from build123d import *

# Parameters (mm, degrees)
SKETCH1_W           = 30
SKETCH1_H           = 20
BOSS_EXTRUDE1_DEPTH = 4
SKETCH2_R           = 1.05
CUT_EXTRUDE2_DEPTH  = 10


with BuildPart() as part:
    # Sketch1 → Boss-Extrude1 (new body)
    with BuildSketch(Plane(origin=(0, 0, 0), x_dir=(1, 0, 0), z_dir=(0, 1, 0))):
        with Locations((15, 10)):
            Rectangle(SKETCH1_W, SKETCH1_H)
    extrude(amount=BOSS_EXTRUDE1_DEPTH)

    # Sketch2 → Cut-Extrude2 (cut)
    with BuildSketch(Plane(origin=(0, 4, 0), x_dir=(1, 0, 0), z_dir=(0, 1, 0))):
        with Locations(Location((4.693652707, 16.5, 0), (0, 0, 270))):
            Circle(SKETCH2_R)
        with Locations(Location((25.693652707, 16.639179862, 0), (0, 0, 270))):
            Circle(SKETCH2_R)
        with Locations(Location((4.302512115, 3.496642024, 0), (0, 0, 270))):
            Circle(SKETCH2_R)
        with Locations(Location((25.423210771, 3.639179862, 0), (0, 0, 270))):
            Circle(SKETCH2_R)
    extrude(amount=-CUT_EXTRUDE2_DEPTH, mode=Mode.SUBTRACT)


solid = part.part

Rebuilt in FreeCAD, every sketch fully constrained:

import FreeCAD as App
import Part
import Sketcher
Q = App.Units.Quantity

doc = App.newDocument("Part")
body = doc.addObject("PartDesign::Body", "Body")

sketch1 = body.newObject("Sketcher::SketchObject", "Sketch")
sketch1.AttachmentSupport = (doc.getObject("XZ_Plane"), [""])
sketch1.MapMode = "FlatFace"
sketch1.addGeometry([
    Part.LineSegment(App.Vector(0, -20, 0), App.Vector(0, 0, 0)),
    Part.LineSegment(App.Vector(0, 0, 0), App.Vector(30, 0, 0)),
    Part.LineSegment(App.Vector(30, 0, 0), App.Vector(30, -20, 0)),
    Part.LineSegment(App.Vector(30, -20, 0), App.Vector(0, -20, 0)),
], False)
sketch1.addConstraint([
    Sketcher.Constraint("Coincident", 0, 2, 1, 1),
    Sketcher.Constraint("Coincident", 1, 2, 2, 1),
    Sketcher.Constraint("Coincident", 2, 2, 3, 1),
    Sketcher.Constraint("Coincident", 3, 2, 0, 1),
    Sketcher.Constraint("Vertical", 0),
    Sketcher.Constraint("Horizontal", 1),
    Sketcher.Constraint("Vertical", 2),
    Sketcher.Constraint("Horizontal", 3),
    Sketcher.Constraint("Coincident", 0, 2, -1, 1),
    Sketcher.Constraint("DistanceX", 1, 1, 1, 2, Q("30 mm")),
    Sketcher.Constraint("DistanceY", 0, 1, 0, 2, Q("20 mm")),
])
pad1 = body.newObject("PartDesign::Pad", "Pad")
pad1.Profile = sketch1
pad1.Length = 4
pad1.Reversed = True

sketch2 = body.newObject("Sketcher::SketchObject", "Sketch001")
sketch2.AttachmentSupport = (doc.getObject("XZ_Plane"), [""])
sketch2.MapMode = "FlatFace"
sketch2.AttachmentOffset = App.Placement(App.Vector(0, 0, -4), App.Rotation())
sketch2.addGeometry([
    Part.Circle(App.Vector(4.7, -16.5, 0), App.Vector(0, 0, 1), 1.1),
    Part.Circle(App.Vector(25.7, -16.6, 0), App.Vector(0, 0, 1), 1.1),
    Part.Circle(App.Vector(4.3, -3.5, 0), App.Vector(0, 0, 1), 1.1),
    Part.Circle(App.Vector(25.4, -3.6, 0), App.Vector(0, 0, 1), 1.1),
], False)
sketch2.addConstraint([
    Sketcher.Constraint("Equal", 0, 1),
    Sketcher.Constraint("Equal", 1, 2),
    Sketcher.Constraint("Equal", 2, 3),
    Sketcher.Constraint("Diameter", 0, Q("2.1 mm")),
    Sketcher.Constraint("DistanceX", 0, 3, 1, 3, Q("21 mm")),
    Sketcher.Constraint("DistanceY", 1, 3, 3, 3, Q("13 mm")),
    Sketcher.Constraint("DistanceY", 0, 3, -1, 1, Q("16.5 mm")),
    Sketcher.Constraint("DistanceX", 2, 3, 3, 3, Q("21.120699 mm")),
    Sketcher.Constraint("DistanceY", 1, 3, -1, 1, Q("16.63918 mm")),
    Sketcher.Constraint("DistanceX", -1, 1, 3, 3, Q("25.423211 mm")),
    Sketcher.Constraint("DistanceX", 2, 3, 0, 3, Q("0.391141 mm")),
    Sketcher.Constraint("DistanceY", 2, 3, -1, 1, Q("3.496642 mm")),
])
pocket1 = body.newObject("PartDesign::Pocket", "Pocket")
pocket1.Profile = sketch2
pocket1.Length = 10
pocket1.Reversed = True

doc.recompute()
